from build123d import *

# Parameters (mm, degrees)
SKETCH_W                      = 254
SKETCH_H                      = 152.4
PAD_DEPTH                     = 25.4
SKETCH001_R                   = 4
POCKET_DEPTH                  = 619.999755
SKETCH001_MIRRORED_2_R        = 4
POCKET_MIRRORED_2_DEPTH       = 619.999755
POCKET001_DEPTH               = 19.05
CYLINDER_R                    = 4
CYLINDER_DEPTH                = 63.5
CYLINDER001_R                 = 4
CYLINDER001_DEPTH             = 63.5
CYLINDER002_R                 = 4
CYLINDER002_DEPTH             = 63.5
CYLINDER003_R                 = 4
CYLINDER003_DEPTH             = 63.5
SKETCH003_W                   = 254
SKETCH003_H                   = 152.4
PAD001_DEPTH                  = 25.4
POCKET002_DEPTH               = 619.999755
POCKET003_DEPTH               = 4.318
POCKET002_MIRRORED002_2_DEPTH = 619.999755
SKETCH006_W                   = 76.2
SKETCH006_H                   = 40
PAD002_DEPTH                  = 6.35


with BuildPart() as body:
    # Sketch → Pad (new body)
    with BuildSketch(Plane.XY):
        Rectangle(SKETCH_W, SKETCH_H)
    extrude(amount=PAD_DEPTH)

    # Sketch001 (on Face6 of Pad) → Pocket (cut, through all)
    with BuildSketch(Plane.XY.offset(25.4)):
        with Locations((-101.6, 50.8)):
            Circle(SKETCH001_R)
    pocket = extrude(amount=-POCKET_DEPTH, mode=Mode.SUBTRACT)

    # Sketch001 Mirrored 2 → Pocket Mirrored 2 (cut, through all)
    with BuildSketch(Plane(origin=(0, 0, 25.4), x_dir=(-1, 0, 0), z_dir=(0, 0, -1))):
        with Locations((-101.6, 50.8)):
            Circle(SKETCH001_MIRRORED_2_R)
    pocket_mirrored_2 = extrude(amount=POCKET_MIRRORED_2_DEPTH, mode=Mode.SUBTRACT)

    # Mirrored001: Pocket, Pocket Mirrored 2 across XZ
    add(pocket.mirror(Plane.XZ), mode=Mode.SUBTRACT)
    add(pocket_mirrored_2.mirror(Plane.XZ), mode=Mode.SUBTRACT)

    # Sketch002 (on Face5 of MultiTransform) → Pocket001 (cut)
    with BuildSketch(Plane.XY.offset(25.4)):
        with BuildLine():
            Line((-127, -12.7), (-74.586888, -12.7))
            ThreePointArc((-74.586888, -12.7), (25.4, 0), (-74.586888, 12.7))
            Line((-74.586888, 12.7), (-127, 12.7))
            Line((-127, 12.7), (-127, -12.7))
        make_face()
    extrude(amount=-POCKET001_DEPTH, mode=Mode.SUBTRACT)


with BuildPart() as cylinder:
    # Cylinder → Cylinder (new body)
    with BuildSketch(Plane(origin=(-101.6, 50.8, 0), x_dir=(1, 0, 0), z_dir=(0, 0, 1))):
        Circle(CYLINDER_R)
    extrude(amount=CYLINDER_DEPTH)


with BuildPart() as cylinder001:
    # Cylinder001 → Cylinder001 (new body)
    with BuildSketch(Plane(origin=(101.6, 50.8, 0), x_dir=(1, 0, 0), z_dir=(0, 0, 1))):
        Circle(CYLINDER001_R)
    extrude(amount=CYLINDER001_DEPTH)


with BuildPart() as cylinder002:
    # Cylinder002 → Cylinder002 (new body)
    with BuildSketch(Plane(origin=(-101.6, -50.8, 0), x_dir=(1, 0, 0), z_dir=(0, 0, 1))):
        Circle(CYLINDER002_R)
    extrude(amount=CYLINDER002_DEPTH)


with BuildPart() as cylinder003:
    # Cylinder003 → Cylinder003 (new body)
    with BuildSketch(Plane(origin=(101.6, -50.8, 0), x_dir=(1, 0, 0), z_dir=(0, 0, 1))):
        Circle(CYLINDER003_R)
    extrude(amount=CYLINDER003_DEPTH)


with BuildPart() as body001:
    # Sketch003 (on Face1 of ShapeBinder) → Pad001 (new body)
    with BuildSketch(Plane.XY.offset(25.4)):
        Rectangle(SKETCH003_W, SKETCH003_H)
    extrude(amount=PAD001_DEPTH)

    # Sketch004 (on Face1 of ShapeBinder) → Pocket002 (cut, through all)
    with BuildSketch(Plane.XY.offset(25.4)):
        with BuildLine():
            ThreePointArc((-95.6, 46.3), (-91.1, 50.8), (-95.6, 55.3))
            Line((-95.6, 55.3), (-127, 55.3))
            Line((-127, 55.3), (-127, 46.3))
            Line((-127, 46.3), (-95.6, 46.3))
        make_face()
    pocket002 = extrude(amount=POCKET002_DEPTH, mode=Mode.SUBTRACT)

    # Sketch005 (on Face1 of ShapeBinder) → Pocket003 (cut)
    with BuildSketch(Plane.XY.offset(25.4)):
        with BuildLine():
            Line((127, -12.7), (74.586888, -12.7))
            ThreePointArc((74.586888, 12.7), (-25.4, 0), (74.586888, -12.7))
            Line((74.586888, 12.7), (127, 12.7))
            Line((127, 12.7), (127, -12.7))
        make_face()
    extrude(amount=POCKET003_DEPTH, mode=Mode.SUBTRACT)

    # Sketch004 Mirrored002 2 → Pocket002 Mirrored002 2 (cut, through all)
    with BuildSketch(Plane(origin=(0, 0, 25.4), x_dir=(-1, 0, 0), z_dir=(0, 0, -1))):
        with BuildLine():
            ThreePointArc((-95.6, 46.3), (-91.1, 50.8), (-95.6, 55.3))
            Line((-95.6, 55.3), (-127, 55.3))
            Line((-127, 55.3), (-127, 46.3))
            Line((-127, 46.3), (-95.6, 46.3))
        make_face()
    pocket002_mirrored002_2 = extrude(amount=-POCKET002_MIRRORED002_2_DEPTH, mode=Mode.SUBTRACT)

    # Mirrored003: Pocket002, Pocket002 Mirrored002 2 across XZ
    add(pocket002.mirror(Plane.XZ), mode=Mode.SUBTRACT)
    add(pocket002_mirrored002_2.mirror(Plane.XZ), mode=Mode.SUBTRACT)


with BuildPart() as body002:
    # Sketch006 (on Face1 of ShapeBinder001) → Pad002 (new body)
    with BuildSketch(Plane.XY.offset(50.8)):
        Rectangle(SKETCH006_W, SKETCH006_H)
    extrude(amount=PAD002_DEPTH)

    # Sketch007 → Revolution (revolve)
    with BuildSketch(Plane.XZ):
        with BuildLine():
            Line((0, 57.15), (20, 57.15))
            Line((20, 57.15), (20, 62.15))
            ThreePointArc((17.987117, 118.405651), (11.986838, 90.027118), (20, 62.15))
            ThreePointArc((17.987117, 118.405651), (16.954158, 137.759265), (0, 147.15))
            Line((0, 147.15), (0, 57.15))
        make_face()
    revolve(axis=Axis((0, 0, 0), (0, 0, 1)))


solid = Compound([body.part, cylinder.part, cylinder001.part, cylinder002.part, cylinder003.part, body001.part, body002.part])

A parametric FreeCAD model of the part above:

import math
import FreeCAD as App
import Part
import Sketcher
from FreeCAD import Vector
Q = App.Units.Quantity


def add_polygon(sketch, points):
    """Adds a closed chain of lines whose ends are joined by coincident constraints."""
    first, n = sketch.GeometryCount, len(points)
    for a, b in zip(points, points[1:] + points[:1]):
        sketch.addGeometry(Part.LineSegment(App.Vector(*a, 0), App.Vector(*b, 0)), False)
    for i in range(n):
        sketch.addConstraint(Sketcher.Constraint("Coincident", first + i, 2, first + (i + 1) % n, 1))

doc = App.newDocument("Part")
body = doc.addObject("PartDesign::Body", "Body")

# Sketch on XY plane
sketch1 = body.newObject("Sketcher::SketchObject", "Sketch")
sketch1.AttachmentSupport = (doc.getObject("XY_Plane"), [""])
sketch1.MapMode = "FlatFace"
add_polygon(sketch1, [(-127, 76), (-127, -76), (127, -76), (127, 76)])  # lines 0-3
sketch1.addConstraint([
    Sketcher.Constraint("Vertical", 0),
    Sketcher.Constraint("Horizontal", 1),
    Sketcher.Constraint("Vertical", 2),
    Sketcher.Constraint("Horizontal", 3),
    Sketcher.Constraint("Symmetric", 0, 2, 2, 2, -1, 1),
    Sketcher.Constraint("DistanceX", 1, 1, 1, 2, Q("10 in")),
    Sketcher.Constraint("DistanceY", 0, 2, 0, 1, Q("6 in")),
])
pad1 = body.newObject("PartDesign::Pad", "Pad")
pad1.Profile = sketch1
pad1.Length = Q("1 in")

# Sketch on XY plane
sketch2 = body.newObject("Sketcher::SketchObject", "Sketch001")
sketch2.AttachmentSupport = (doc.getObject("XY_Plane"), [""])
sketch2.MapMode = "FlatFace"
sketch2.AttachmentOffset = App.Placement(Vector(0, 0, 1 * 25.4), App.Rotation())
sketch2.addGeometry(Part.Circle(Vector(-101.6, 50.8, 0), Vector(0, 0, 1), 4), False)
sketch2.addConstraint([
    Sketcher.Constraint("DistanceX", 0, 3, -1, 1, Q("4 in")),
    Sketcher.Constraint("DistanceY", -1, 1, 0, 3, Q("2 in")),
    Sketcher.Constraint("Diameter", 0, Q("8 mm")),
])
pocket1 = body.newObject("PartDesign::Pocket", "Pocket")
pocket1.Profile = sketch2
pocket1.Type = "ThroughAll"

# Sketch on XY plane
sketch3 = body.newObject("Sketcher::SketchObject", "Sketch002")
sketch3.AttachmentSupport = (doc.getObject("XY_Plane"), [""])
sketch3.MapMode = "FlatFace"
sketch3.AttachmentOffset = App.Placement(Vector(0, 0, 1 * 25.4), App.Rotation())
sketch3.addGeometry(Part.Circle(Vector(101.6, 50.8, 0), Vector(0, 0, 1), 4), False)
sketch3.addConstraint([
    Sketcher.Constraint("DistanceX", -1, 1, 0, 3, Q("4 in")),
    Sketcher.Constraint("DistanceY", -1, 1, 0, 3, Q("2 in")),
    Sketcher.Constraint("Diameter", 0, Q("8 mm")),
])
pocket2 = body.newObject("PartDesign::Pocket", "Pocket001")
pocket2.Profile = sketch3
pocket2.Type = "ThroughAll"
doc.recompute()

mirrored = body.newObject("PartDesign::Mirrored", "Mirrored")
mirrored.Originals = [pocket1, pocket2]
mirrored.MirrorPlane = (doc.getObject("XZ_Plane"), [""])
body.Tip = mirrored

# Sketch on XY plane
sketch4 = body.newObject("Sketcher::SketchObject", "Sketch003")
sketch4.AttachmentSupport = (doc.getObject("XY_Plane"), [""])
sketch4.MapMode = "FlatFace"
sketch4.AttachmentOffset = App.Placement(Vector(0, 0, 1 * 25.4), App.Rotation())
sketch4.addGeometry([
    Part.LineSegment(Vector(-127, -13, 0), Vector(-75, -13, 0)),
    Part.ArcOfCircle(Part.Circle(Vector(-25, 0, 0), Vector(0, 0, 1), 51), math.radians(-166), math.radians(166)),
    Part.LineSegment(Vector(-75, 13, 0), Vector(-127, 13, 0)),
    Part.LineSegment(Vector(-127, 13, 0), Vector(-127, -13, 0)),
], False)
sketch4.addConstraint([
    Sketcher.Constraint("Coincident", 0, 2, 1, 1),
    Sketcher.Constraint("Coincident", 1, 2, 2, 1),
    Sketcher.Constraint("Coincident", 2, 2, 3, 1),
    Sketcher.Constraint("Coincident", 3, 2, 0, 1),
    Sketcher.Constraint("Horizontal", 0),
    Sketcher.Constraint("Horizontal", 2),
    Sketcher.Constraint("Vertical", 3),
    Sketcher.Constraint("Symmetric", 0, 2, 1, 2, -1),
    Sketcher.Constraint("Radius", 1, Q("2 in")),
    Sketcher.Constraint("DistanceY", 3, 2, 3, 1, Q("1 in")),
    Sketcher.Constraint("DistanceX", 1, 3, -1, 1, Q("1 in")),
    Sketcher.Constraint("DistanceX", 2, 2, -1, 1, Q("5 in")),
])
pocket3 = body.newObject("PartDesign::Pocket", "Pocket002")
pocket3.Profile = sketch4
pocket3.Length = Q("0.75 in")
body2 = doc.addObject("PartDesign::Body", "Body001")

# Sketch on XY plane
sketch5 = body2.newObject("Sketcher::SketchObject", "Sketch004")
sketch5.AttachmentSupport = (doc.getObject("XY_Plane001"), [""])
sketch5.MapMode = "FlatFace"
sketch5.addGeometry(Part.Circle(Vector(-101.6, 50.8, 0), Vector(0, 0, 1), 4), False)
sketch5.addConstraint([
    Sketcher.Constraint("DistanceX", 0, 3, -1, 1, Q("4 in")),
    Sketcher.Constraint("DistanceY", -1, 1, 0, 3, Q("2 in")),
    Sketcher.Constraint("Diameter", 0, Q("8 mm")),
])
pad2 = body2.newObject("PartDesign::Pad", "Pad001")
pad2.Profile = sketch5
pad2.Length = Q("2.5 in")
body3 = doc.addObject("PartDesign::Body", "Body002")

# Sketch on XY plane
sketch6 = body3.newObject("Sketcher::SketchObject", "Sketch005")
sketch6.AttachmentSupport = (doc.getObject("XY_Plane002"), [""])
sketch6.MapMode = "FlatFace"
sketch6.addGeometry(Part.Circle(Vector(101.6, 50.8, 0), Vector(0, 0, 1), 4), False)
sketch6.addConstraint([
    Sketcher.Constraint("DistanceX", -1, 1, 0, 3, Q("4 in")),
    Sketcher.Constraint("DistanceY", -1, 1, 0, 3, Q("2 in")),
    Sketcher.Constraint("Diameter", 0, Q("8 mm")),
])
pad3 = body3.newObject("PartDesign::Pad", "Pad002")
pad3.Profile = sketch6
pad3.Length = Q("2.5 in")
body4 = doc.addObject("PartDesign::Body", "Body003")

# Sketch on XY plane
sketch7 = body4.newObject("Sketcher::SketchObject", "Sketch006")
sketch7.AttachmentSupport = (doc.getObject("XY_Plane003"), [""])
sketch7.MapMode = "FlatFace"
sketch7.addGeometry(Part.Circle(Vector(-101.6, -50.8, 0), Vector(0, 0, 1), 4), False)
sketch7.addConstraint([
    Sketcher.Constraint("DistanceX", 0, 3, -1, 1, Q("4 in")),
    Sketcher.Constraint("DistanceY", 0, 3, -1, 1, Q("2 in")),
    Sketcher.Constraint("Diameter", 0, Q("8 mm")),
])
pad4 = body4.newObject("PartDesign::Pad", "Pad003")
pad4.Profile = sketch7
pad4.Length = Q("2.5 in")
body5 = doc.addObject("PartDesign::Body", "Body004")

# Sketch on XY plane
sketch8 = body5.newObject("Sketcher::SketchObject", "Sketch007")
sketch8.AttachmentSupport = (doc.getObject("XY_Plane004"), [""])
sketch8.MapMode = "FlatFace"
sketch8.addGeometry(Part.Circle(Vector(101.6, -50.8, 0), Vector(0, 0, 1), 4), False)
sketch8.addConstraint([
    Sketcher.Constraint("DistanceX", -1, 1, 0, 3, Q("4 in")),
    Sketcher.Constraint("DistanceY", 0, 3, -1, 1, Q("2 in")),
    Sketcher.Constraint("Diameter", 0, Q("8 mm")),
])
pad5 = body5.newObject("PartDesign::Pad", "Pad004")
pad5.Profile = sketch8
pad5.Length = Q("2.5 in")
body6 = doc.addObject("PartDesign::Body", "Body005")

# Sketch on XY plane
sketch9 = body6.newObject("Sketcher::SketchObject", "Sketch008")
sketch9.AttachmentSupport = (doc.getObject("XY_Plane005"), [""])
sketch9.MapMode = "FlatFace"
sketch9.AttachmentOffset = App.Placement(Vector(0, 0, 1 * 25.4), App.Rotation())
add_polygon(sketch9, [(-127, 76), (-127, -76), (127, -76), (127, 76)])  # lines 0-3
sketch9.addConstraint([
    Sketcher.Constraint("Vertical", 0),
    Sketcher.Constraint("Horizontal", 1),
    Sketcher.Constraint("Vertical", 2),
    Sketcher.Constraint("Horizontal", 3),
    Sketcher.Constraint("Symmetric", 0, 2, 2, 2, -1, 1),
    Sketcher.Constraint("DistanceX", 1, 1, 1, 2, Q("10 in")),
    Sketcher.Constraint("DistanceY", 0, 2, 0, 1, Q("6 in")),
])
pad6 = body6.newObject("PartDesign::Pad", "Pad005")
pad6.Profile = sketch9
pad6.Length = Q("1 in")

# Sketch on XY plane
sketch10 = body6.newObject("Sketcher::SketchObject", "Sketch009")
sketch10.AttachmentSupport = (doc.getObject("XY_Plane005"), [""])
sketch10.MapMode = "FlatFace"
sketch10.AttachmentOffset = App.Placement(Vector(0, 0, 1 * 25.4), App.Rotation())
sketch10.addGeometry([
    Part.ArcOfCircle(Part.Circle(Vector(-95.6, 50.8, 0), Vector(0, 0, 1), 4.5), math.radians(-90), math.radians(90)),
    Part.LineSegment(Vector(-95.6, 55.3, 0), Vector(-127, 55.3, 0)),
    Part.LineSegment(Vector(-127, 55.3, 0), Vector(-127, 46.3, 0)),
    Part.LineSegment(Vector(-127, 46.3, 0), Vector(-95.6, 46.3, 0)),
], False)
sketch10.addConstraint([
    Sketcher.Constraint("Tangent", 0, 2, 1, 1),
    Sketcher.Constraint("Coincident", 1, 2, 2, 1),
    Sketcher.Constraint("Coincident", 2, 2, 3, 1),
    Sketcher.Constraint("Tangent", 3, 2, 0, 1),
    Sketcher.Constraint("Horizontal", 1),
    Sketcher.Constraint("Vertical", 2),
    Sketcher.Constraint("Horizontal", 3),
    Sketcher.Constraint("DistanceY", -1, 1, 0, 3, Q("2 in")),
    Sketcher.Constraint("DistanceX", 1, 2, -1, 1, Q("5 in")),
    Sketcher.Constraint("Radius", 0, Q("4.5 mm")),
    Sketcher.Constraint("DistanceX", 1, 2, 1, 1, Q("31.4 mm")),
])
pocket4 = body6.newObject("PartDesign::Pocket", "Pocket003")
pocket4.Profile = sketch10
pocket4.Type = "ThroughAll"
pocket4.Reversed = True

# Sketch on XY plane
sketch11 = body6.newObject("Sketcher::SketchObject", "Sketch010")
sketch11.AttachmentSupport = (doc.getObject("XY_Plane005"), [""])
sketch11.MapMode = "FlatFace"
sketch11.AttachmentOffset = App.Placement(Vector(0, 0, 1 * 25.4), App.Rotation())
sketch11.addGeometry([
    Part.LineSegment(Vector(75, -13, 0), Vector(127, -13, 0)),
    Part.LineSegment(Vector(127, -13, 0), Vector(127, 13, 0)),
    Part.LineSegment(Vector(127, 13, 0), Vector(75, 13, 0)),
    Part.ArcOfCircle(Part.Circle(Vector(25, 0, 0), Vector(0, 0, 1), 51), math.radians(14), math.radians(346)),
], False)
sketch11.addConstraint([
    Sketcher.Constraint("Coincident", 0, 2, 1, 1),
    Sketcher.Constraint("Coincident", 1, 2, 2, 1),
    Sketcher.Constraint("Coincident", 2, 2, 3, 1),
    Sketcher.Constraint("Coincident", 3, 2, 0, 1),
    Sketcher.Constraint("Horizontal", 0),
    Sketcher.Constraint("Vertical", 1),
    Sketcher.Constraint("Horizontal", 2),
    Sketcher.Constraint("Symmetric", 2, 2, 3, 2, -1),
    Sketcher.Constraint("Radius", 3, Q("2 in")),
    Sketcher.Constraint("DistanceY", 1, 1, 1, 2, Q("1 in")),
    Sketcher.Constraint("DistanceX", -1, 1, 3, 3, Q("1 in")),
    Sketcher.Constraint("DistanceX", -1, 1, 0, 2, Q("5 in")),
])
pocket5 = body6.newObject("PartDesign::Pocket", "Pocket004")
pocket5.Profile = sketch11
pocket5.Length = Q("0.17 in")
pocket5.Reversed = True

# Sketch on XY plane
sketch12 = body6.newObject("Sketcher::SketchObject", "Sketch011")
sketch12.AttachmentSupport = (doc.getObject("XY_Plane005"), [""])
sketch12.MapMode = "FlatFace"
sketch12.AttachmentOffset = App.Placement(Vector(0, 0, 1 * 25.4), App.Rotation())
sketch12.addGeometry([
    Part.ArcOfCircle(Part.Circle(Vector(95.6, 50.8, 0), Vector(0, 0, 1), 4.5), math.radians(90), math.radians(270)),
    Part.LineSegment(Vector(95.6, 55.3, 0), Vector(127, 55.3, 0)),
    Part.LineSegment(Vector(127, 55.3, 0), Vector(127, 46.3, 0)),
    Part.LineSegment(Vector(127, 46.3, 0), Vector(95.6, 46.3, 0)),
], False)
sketch12.addConstraint([
    Sketcher.Constraint("Tangent", 0, 1, 1, 1),
    Sketcher.Constraint("Coincident", 1, 2, 2, 1),
    Sketcher.Constraint("Coincident", 2, 2, 3, 1),
    Sketcher.Constraint("Tangent", 3, 2, 0, 2),
    Sketcher.Constraint("Horizontal", 1),
    Sketcher.Constraint("Vertical", 2),
    Sketcher.Constraint("Horizontal", 3),
    Sketcher.Constraint("DistanceY", -1, 1, 0, 3, Q("2 in")),
    Sketcher.Constraint("DistanceX", -1, 1, 1, 2, Q("5 in")),
    Sketcher.Constraint("Radius", 0, Q("4.5 mm")),
    Sketcher.Constraint("DistanceX", 1, 1, 1, 2, Q("31.4 mm")),
])
pocket6 = body6.newObject("PartDesign::Pocket", "Pocket005")
pocket6.Profile = sketch12
pocket6.Type = "ThroughAll"
pocket6.Reversed = True
doc.recompute()

mirrored2 = body6.newObject("PartDesign::Mirrored", "Mirrored001")
mirrored2.Originals = [pocket4, pocket6]
mirrored2.MirrorPlane = (doc.getObject("XZ_Plane005"), [""])
body6.Tip = mirrored2
body7 = doc.addObject("PartDesign::Body", "Body006")

# Sketch on XY plane
sketch13 = body7.newObject("Sketcher::SketchObject", "Sketch012")
sketch13.AttachmentSupport = (doc.getObject("XY_Plane006"), [""])
sketch13.MapMode = "FlatFace"
sketch13.AttachmentOffset = App.Placement(Vector(0, 0, 2 * 25.4), App.Rotation())
add_polygon(sketch13, [(-38, 20), (-38, -20), (38, -20), (38, 20)])  # lines 0-3
sketch13.addConstraint([
    Sketcher.Constraint("Vertical", 0),
    Sketcher.Constraint("Horizontal", 1),
    Sketcher.Constraint("Vertical", 2),
    Sketcher.Constraint("Horizontal", 3),
    Sketcher.Constraint("Symmetric", 0, 2, 2, 2, -1, 1),
    Sketcher.Constraint("DistanceX", 1, 1, 1, 2, Q("3 in")),
    Sketcher.Constraint("DistanceY", 0, 2, 0, 1, Q("40 mm")),
])
pad7 = body7.newObject("PartDesign::Pad", "Pad006")
pad7.Profile = sketch13
pad7.Length = Q("0.25 in")

# Sketch on XZ plane
sketch14 = body7.newObject("Sketcher::SketchObject", "Sketch013")
sketch14.AttachmentSupport = (doc.getObject("XZ_Plane006"), [""])
sketch14.MapMode = "FlatFace"
sketch14.addGeometry([
    Part.LineSegment(Vector(0, 57, 0), Vector(20, 57, 0)),  # 0
    Part.LineSegment(Vector(20, 57, 0), Vector(20, 62, 0)),  # 1
    Part.ArcOfCircle(Part.Circle(Vector(72, 92, 0), Vector(0, 0, 1), 60), math.radians(154), math.radians(210)),  # 2
    Part.ArcOfCircle(Part.Circle(Vector(0, 127, 0), Vector(0, 0, 1), 20), math.radians(-26), math.radians(90)),  # 3
    Part.LineSegment(Vector(0, 147, 0), Vector(0, 57, 0)),  # 4
], False)
sketch14.addConstraint([
    Sketcher.Constraint("Coincident", 0, 2, 1, 1),
    Sketcher.Constraint("Coincident", 1, 2, 2, 2),
    Sketcher.Constraint("Tangent", 2, 1, 3, 1),
    Sketcher.Constraint("Coincident", 3, 2, 4, 1),
    Sketcher.Constraint("Coincident", 4, 2, 0, 1),
    Sketcher.Constraint("Horizontal", 0),
    Sketcher.Constraint("Vertical", 1),
    Sketcher.Constraint("Vertical", 4),
    Sketcher.Constraint("PointOnObject", 3, 3, -2),
    Sketcher.Constraint("PointOnObject", 3, 2, -2),
    Sketcher.Constraint("DistanceY", -1, 1, 0, 2, Q("2.25 in")),
    Sketcher.Constraint("Radius", 3, Q("20.000001 mm")),
    Sketcher.Constraint("DistanceX", 0, 1, 0, 2, Q("20 mm")),
    Sketcher.Constraint("DistanceY", 1, 1, 1, 2, Q("5 mm")),
    Sketcher.Constraint("DistanceY", 4, 2, 4, 1, Q("90 mm")),
    Sketcher.Constraint("Radius", 2, Q("59.999997 mm")),
])
revolution = body7.newObject("PartDesign::Revolution", "Revolution")
revolution.Profile = sketch14
revolution.ReferenceAxis = (sketch14, ["V_Axis"])
revolution.Angle = 360

doc.recompute()
